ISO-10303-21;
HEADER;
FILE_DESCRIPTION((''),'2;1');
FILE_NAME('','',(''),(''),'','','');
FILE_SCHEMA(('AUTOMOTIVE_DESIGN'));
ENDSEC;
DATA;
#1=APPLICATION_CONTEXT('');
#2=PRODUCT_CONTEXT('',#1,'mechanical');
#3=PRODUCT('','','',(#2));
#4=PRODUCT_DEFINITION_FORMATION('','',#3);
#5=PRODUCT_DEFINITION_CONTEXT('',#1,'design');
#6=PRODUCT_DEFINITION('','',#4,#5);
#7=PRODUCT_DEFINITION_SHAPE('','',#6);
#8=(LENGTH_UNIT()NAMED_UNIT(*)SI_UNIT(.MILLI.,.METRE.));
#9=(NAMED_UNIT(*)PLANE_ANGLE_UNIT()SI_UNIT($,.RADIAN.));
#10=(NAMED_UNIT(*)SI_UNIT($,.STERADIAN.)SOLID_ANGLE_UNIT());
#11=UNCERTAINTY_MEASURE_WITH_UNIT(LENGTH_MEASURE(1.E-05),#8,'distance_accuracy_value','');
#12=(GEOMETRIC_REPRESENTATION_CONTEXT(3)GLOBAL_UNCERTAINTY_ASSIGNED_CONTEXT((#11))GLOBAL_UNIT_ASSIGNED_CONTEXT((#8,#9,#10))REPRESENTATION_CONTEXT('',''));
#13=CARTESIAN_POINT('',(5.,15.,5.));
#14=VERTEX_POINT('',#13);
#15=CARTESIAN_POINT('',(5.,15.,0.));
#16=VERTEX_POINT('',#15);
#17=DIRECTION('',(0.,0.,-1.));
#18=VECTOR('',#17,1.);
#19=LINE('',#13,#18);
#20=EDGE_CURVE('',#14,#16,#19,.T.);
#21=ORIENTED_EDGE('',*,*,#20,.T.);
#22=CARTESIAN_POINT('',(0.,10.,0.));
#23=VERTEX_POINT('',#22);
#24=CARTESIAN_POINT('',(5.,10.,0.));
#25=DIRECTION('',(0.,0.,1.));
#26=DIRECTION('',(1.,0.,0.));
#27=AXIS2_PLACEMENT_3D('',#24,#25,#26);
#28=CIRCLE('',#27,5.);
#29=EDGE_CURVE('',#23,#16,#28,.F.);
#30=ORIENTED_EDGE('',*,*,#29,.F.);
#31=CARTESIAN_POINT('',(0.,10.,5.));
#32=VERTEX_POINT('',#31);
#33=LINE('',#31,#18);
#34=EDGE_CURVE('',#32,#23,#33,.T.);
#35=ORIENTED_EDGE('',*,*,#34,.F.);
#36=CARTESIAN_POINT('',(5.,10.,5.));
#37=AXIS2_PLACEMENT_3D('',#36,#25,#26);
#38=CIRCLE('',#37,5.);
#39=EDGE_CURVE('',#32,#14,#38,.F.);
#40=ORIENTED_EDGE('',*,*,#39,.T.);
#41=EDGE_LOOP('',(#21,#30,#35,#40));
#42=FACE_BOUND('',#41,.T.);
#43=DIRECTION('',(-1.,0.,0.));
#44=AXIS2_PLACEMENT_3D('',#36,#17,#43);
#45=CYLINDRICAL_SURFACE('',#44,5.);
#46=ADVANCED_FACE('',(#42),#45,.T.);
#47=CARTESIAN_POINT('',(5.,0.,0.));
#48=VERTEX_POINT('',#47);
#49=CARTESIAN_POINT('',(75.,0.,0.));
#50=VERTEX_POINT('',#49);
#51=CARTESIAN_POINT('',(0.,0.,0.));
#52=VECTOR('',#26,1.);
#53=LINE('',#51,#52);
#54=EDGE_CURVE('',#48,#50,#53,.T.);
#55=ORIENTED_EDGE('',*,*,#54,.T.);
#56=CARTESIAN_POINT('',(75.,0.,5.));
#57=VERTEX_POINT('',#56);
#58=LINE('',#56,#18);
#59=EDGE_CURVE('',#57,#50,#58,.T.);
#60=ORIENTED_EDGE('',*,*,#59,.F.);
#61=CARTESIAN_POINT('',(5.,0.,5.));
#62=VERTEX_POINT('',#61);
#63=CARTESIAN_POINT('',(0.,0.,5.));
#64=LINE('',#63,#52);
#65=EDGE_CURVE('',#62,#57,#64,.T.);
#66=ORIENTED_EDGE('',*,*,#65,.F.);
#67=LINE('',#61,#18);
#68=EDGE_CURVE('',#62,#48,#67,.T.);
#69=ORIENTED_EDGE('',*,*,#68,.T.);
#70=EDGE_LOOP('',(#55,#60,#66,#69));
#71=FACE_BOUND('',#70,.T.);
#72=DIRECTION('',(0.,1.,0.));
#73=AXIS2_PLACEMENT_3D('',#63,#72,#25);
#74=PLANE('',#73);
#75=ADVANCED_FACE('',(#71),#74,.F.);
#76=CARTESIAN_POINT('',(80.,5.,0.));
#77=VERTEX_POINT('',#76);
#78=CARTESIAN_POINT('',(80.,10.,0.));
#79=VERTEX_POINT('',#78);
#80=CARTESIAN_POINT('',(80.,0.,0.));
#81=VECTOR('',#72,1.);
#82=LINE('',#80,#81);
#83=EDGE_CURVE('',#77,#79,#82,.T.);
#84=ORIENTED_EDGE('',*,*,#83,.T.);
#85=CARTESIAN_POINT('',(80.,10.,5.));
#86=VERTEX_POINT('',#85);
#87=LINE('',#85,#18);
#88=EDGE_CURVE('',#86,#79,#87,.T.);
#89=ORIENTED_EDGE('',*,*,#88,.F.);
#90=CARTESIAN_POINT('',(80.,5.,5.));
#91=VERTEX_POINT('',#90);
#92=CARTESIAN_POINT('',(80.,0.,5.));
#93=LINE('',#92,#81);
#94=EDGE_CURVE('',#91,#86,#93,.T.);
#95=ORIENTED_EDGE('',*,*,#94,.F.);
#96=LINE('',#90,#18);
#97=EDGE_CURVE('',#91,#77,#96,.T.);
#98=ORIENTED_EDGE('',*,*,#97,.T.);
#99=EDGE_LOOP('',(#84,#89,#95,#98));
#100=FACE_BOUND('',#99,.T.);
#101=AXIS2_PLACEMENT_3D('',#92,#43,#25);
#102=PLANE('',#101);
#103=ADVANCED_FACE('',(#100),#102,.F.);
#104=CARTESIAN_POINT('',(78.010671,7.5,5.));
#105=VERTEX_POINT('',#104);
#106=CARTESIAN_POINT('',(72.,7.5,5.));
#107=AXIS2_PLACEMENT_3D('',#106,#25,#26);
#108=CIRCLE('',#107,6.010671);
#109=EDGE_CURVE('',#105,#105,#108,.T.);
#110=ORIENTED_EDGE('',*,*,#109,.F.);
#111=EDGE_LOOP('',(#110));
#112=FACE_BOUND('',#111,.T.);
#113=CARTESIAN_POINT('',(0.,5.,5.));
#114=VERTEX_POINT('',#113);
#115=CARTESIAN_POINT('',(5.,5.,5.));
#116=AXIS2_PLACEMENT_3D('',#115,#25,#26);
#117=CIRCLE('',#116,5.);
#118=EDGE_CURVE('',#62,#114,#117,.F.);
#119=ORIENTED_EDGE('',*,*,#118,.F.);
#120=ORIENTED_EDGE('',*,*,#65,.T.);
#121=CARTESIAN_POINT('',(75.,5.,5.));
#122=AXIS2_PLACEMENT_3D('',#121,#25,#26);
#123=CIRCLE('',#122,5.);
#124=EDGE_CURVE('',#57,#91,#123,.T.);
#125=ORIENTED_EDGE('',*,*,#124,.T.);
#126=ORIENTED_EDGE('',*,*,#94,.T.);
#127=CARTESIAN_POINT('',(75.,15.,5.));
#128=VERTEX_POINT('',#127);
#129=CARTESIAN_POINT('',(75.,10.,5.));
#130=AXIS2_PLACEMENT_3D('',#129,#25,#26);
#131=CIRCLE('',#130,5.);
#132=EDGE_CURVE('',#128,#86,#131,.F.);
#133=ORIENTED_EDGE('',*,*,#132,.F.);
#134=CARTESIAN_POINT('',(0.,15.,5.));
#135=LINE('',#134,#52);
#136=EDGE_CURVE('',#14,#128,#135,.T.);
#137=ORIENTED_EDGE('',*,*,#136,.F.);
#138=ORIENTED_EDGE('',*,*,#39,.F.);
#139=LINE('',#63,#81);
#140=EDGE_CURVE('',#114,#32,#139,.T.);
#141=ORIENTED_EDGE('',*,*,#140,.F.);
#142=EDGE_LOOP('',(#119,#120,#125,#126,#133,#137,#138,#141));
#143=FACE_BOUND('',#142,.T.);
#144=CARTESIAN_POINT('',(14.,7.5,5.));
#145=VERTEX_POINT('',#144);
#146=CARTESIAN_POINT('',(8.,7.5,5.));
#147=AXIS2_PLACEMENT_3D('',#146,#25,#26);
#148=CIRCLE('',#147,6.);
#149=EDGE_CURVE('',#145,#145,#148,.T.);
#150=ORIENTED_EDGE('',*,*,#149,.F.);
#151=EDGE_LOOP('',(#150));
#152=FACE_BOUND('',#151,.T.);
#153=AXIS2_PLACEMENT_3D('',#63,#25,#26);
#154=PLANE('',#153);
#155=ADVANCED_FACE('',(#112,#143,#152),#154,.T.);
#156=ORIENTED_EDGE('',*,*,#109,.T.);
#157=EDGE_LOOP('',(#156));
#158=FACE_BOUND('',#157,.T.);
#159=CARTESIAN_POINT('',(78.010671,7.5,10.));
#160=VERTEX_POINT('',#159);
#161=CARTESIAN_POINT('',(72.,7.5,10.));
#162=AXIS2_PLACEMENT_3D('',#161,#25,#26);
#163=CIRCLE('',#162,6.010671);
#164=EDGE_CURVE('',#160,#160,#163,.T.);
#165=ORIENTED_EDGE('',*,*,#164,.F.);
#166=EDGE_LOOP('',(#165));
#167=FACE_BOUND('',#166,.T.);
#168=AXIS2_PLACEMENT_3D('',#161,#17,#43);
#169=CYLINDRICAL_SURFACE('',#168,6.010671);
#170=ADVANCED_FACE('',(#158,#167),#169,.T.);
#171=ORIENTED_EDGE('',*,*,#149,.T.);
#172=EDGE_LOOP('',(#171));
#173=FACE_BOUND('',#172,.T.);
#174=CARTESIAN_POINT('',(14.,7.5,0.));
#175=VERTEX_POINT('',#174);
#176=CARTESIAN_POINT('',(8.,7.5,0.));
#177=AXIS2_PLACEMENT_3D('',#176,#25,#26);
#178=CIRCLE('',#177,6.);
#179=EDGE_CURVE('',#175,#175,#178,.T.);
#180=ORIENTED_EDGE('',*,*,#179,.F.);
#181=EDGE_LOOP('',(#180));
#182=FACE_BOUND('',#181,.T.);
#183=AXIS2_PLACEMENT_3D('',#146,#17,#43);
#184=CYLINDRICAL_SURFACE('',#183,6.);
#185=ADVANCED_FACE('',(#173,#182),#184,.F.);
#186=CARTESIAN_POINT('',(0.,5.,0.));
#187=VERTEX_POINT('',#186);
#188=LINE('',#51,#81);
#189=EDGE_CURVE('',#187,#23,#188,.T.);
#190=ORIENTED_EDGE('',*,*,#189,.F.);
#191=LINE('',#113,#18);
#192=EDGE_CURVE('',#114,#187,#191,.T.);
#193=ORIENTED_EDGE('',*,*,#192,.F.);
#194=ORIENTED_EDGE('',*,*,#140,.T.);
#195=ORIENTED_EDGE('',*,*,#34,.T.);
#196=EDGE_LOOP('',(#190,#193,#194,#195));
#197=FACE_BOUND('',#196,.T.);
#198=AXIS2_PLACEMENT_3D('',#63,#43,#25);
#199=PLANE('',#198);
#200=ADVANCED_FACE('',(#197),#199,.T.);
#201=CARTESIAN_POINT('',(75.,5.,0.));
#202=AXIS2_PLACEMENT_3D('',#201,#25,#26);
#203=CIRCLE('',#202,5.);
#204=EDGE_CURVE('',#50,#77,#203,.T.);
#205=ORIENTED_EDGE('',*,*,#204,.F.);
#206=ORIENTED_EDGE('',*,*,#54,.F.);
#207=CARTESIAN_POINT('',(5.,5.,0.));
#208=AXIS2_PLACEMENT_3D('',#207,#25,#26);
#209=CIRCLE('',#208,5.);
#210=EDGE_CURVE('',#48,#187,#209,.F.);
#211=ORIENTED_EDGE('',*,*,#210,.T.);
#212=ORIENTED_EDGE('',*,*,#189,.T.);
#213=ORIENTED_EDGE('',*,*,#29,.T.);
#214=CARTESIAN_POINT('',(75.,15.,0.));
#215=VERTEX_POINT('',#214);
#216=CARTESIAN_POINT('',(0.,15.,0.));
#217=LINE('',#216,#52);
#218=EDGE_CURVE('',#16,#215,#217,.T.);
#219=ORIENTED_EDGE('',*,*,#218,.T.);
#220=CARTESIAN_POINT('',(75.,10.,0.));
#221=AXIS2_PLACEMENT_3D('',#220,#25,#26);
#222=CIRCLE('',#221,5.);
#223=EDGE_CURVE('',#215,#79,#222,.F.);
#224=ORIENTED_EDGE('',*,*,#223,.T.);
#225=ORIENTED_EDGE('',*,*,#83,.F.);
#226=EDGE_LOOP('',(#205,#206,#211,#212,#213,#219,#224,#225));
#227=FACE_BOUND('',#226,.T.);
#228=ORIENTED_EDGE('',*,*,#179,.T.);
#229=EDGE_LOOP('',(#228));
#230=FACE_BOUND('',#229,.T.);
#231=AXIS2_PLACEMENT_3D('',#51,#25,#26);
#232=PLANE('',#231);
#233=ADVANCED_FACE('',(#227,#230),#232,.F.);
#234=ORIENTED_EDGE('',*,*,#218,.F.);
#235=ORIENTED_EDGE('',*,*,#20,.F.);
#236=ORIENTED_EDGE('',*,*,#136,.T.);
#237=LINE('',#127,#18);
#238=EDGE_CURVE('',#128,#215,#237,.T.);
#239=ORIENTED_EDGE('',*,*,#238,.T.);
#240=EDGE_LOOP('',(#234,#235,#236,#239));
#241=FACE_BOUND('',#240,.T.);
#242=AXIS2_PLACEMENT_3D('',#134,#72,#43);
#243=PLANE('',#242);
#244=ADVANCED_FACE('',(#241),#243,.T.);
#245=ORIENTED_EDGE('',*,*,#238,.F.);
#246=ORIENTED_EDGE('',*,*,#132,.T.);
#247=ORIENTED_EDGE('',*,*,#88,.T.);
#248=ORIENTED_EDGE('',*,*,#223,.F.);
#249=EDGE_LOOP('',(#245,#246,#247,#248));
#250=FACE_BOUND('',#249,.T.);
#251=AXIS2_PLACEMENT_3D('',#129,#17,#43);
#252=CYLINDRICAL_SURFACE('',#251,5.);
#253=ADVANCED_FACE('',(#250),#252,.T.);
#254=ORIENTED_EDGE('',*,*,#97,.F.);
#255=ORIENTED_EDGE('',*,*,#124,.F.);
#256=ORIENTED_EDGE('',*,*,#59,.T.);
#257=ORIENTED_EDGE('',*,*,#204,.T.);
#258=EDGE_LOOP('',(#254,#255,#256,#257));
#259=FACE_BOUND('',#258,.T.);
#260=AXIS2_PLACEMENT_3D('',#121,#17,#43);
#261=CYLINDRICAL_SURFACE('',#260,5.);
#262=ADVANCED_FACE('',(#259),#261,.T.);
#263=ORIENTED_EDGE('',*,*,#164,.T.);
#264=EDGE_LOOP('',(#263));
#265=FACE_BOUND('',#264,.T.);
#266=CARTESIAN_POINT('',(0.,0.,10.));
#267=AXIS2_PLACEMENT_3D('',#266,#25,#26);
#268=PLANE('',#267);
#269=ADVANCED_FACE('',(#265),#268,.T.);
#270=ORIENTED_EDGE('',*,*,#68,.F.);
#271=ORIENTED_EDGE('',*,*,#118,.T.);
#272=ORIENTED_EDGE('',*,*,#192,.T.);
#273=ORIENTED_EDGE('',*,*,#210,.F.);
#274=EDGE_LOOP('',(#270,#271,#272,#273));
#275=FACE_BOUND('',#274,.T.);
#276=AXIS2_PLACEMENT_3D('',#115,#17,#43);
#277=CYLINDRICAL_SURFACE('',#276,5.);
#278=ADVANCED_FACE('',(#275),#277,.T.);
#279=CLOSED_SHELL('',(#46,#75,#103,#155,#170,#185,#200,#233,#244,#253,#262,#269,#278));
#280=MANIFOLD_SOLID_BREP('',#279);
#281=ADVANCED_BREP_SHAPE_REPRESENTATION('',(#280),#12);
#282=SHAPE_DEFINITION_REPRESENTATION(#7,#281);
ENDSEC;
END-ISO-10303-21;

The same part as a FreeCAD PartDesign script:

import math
import FreeCAD as App
import Part
import Sketcher

V = App.Vector

doc = App.newDocument("Part")
body = doc.addObject("PartDesign::Body", "Body")

# Sketch on XY plane
sketch1 = body.newObject("Sketcher::SketchObject", "Sketch")
sketch1.AttachmentSupport = (doc.getObject("XY_Plane"), [""])
sketch1.MapMode = "FlatFace"
sketch1.addGeometry(Part.ArcOfCircle(Part.Circle(V(5, 10, 0), V(0, 0, 1), 5), math.radians(90), math.radians(180)), False)
sketch1.addGeometry(Part.LineSegment(V(0, 10, 0), V(0, 5, 0)), False)
sketch1.addGeometry(Part.ArcOfCircle(Part.Circle(V(5, 5, 0), V(0, 0, 1), 5), math.radians(180), math.radians(270)), False)
sketch1.addGeometry(Part.LineSegment(V(5, 0, 0), V(75, 0, 0)), False)
sketch1.addGeometry(Part.ArcOfCircle(Part.Circle(V(75, 5, 0), V(0, 0, 1), 5), math.radians(-90), math.radians(0)), False)
sketch1.addGeometry(Part.LineSegment(V(80, 5, 0), V(80, 10, 0)), False)
sketch1.addGeometry(Part.ArcOfCircle(Part.Circle(V(75, 10, 0), V(0, 0, 1), 5), math.radians(0), math.radians(90)), False)
sketch1.addGeometry(Part.LineSegment(V(75, 15, 0), V(5, 15, 0)), False)
sketch1.addGeometry(Part.ArcOfCircle(Part.Circle(V(8, 8, 0), V(0, 0, 1), 6), math.radians(-120), math.radians(0)), False)
sketch1.addGeometry(Part.ArcOfCircle(Part.Circle(V(8, 7, 0), V(0, 0, 1), 6), math.radians(180), math.radians(240)), False)
sketch1.addGeometry(Part.ArcOfCircle(Part.Circle(V(8, 8, 0), V(0, 0, 1), 6), math.radians(120), math.radians(180)), False)
sketch1.addGeometry(Part.ArcOfCircle(Part.Circle(V(8, 8, 0), V(0, 0, 1), 6), math.radians(0), math.radians(120)), False)
sketch1.addGeometry(Part.ArcOfCircle(Part.Circle(V(72, 8, 0), V(0, 0, 1), 6), math.radians(180), math.radians(300)), False)
sketch1.addGeometry(Part.ArcOfCircle(Part.Circle(V(72, 8, 0), V(0, 0, 1), 6), math.radians(60), math.radians(180)), False)
sketch1.addGeometry(Part.ArcOfCircle(Part.Circle(V(72, 8, 0), V(0, 0, 1), 6), math.radians(0), math.radians(60)), False)
sketch1.addGeometry(Part.ArcOfCircle(Part.Circle(V(72, 8, 0), V(0, 0, 1), 6), math.radians(-60), math.radians(0)), False)
sketch1.addConstraint(Sketcher.Constraint("Tangent", 0, 2, 1, 1))
sketch1.addConstraint(Sketcher.Constraint("Tangent", 1, 2, 2, 1))
sketch1.addConstraint(Sketcher.Constraint("Tangent", 2, 2, 3, 1))
sketch1.addConstraint(Sketcher.Constraint("Tangent", 3, 2, 4, 1))
sketch1.addConstraint(Sketcher.Constraint("Tangent", 4, 2, 5, 1))
sketch1.addConstraint(Sketcher.Constraint("Tangent", 5, 2, 6, 1))
sketch1.addConstraint(Sketcher.Constraint("Tangent", 6, 2, 7, 1))
sketch1.addConstraint(Sketcher.Constraint("Tangent", 7, 2, 0, 1))
sketch1.addConstraint(Sketcher.Constraint("Tangent", 8, 1, 9, 2))
sketch1.addConstraint(Sketcher.Constraint("Tangent", 9, 1, 10, 2))
sketch1.addConstraint(Sketcher.Constraint("Tangent", 10, 1, 11, 2))
sketch1.addConstraint(Sketcher.Constraint("Tangent", 11, 1, 8, 2))
sketch1.addConstraint(Sketcher.Constraint("Tangent", 12, 1, 13, 2))
sketch1.addConstraint(Sketcher.Constraint("Tangent", 13, 1, 14, 2))
sketch1.addConstraint(Sketcher.Constraint("Tangent", 14, 1, 15, 2))
sketch1.addConstraint(Sketcher.Constraint("Tangent", 15, 1, 12, 2))
sketch1.addConstraint(Sketcher.Constraint("Vertical", 1))
sketch1.addConstraint(Sketcher.Constraint("Horizontal", 3))
sketch1.addConstraint(Sketcher.Constraint("Vertical", 5))
sketch1.addConstraint(Sketcher.Constraint("Horizontal", 7))
sketch1.addConstraint(Sketcher.Constraint("Equal", 0, 2))
sketch1.addConstraint(Sketcher.Constraint("Equal", 2, 4))
sketch1.addConstraint(Sketcher.Constraint("Equal", 4, 6))
sketch1.addConstraint(Sketcher.Constraint("Equal", 8, 9))
sketch1.addConstraint(Sketcher.Constraint("Equal", 12, 13))
sketch1.addConstraint(Sketcher.Constraint("PointOnObject", 0, 2, -2))
sketch1.addConstraint(Sketcher.Constraint("PointOnObject", 2, 2, -1))
sketch1.addConstraint(Sketcher.Constraint("Horizontal", 11, 3, 12, 3))
sketch1.addConstraint(Sketcher.Constraint("Horizontal", 15, 3, 9, 1))
sketch1.addConstraint(Sketcher.Constraint("Horizontal", 9, 1, 11, 1))
sketch1.addConstraint(Sketcher.Constraint("Horizontal", 11, 1, 12, 1))
sketch1.addConstraint(Sketcher.Constraint("Horizontal", 12, 1, 14, 1))
sketch1.addConstraint(Sketcher.Constraint("Vertical", 7, 2, 8, 1))
sketch1.addConstraint(Sketcher.Constraint("Vertical", 8, 1, 10, 1))
sketch1.addConstraint(Sketcher.Constraint("Vertical", 6, 2, 13, 1))
sketch1.addConstraint(Sketcher.Constraint("Vertical", 13, 1, 15, 1))
sketch1.addConstraint(Sketcher.Constraint("Radius", 0, 5.0))
sketch1.addConstraint(Sketcher.Constraint("Radius", 8, 6.0))
sketch1.addConstraint(Sketcher.Constraint("DistanceX", 3, 1, 3, 2, 70.0))
sketch1.addConstraint(Sketcher.Constraint("DistanceY", 1, 2, 1, 1, 5.0))
sketch1.addConstraint(Sketcher.Constraint("DistanceX", -1, 1, 8, 3, 8.0))
sketch1.addConstraint(Sketcher.Constraint("DistanceX", -1, 1, 12, 3, 72.0))
sketch1.addConstraint(Sketcher.Constraint("DistanceY", -1, 1, 8, 3, 7.5))
sketch1.addConstraint(Sketcher.Constraint("Radius", 12, 6.010671))
pad1 = body.newObject("PartDesign::Pad", "Pad")
pad1.Profile = sketch1
pad1.Length = 5

# Sketch on XY plane
sketch2 = body.newObject("Sketcher::SketchObject", "Sketch001")
sketch2.AttachmentSupport = (doc.getObject("XY_Plane"), [""])
sketch2.MapMode = "FlatFace"
sketch2.addGeometry(Part.ArcOfCircle(Part.Circle(V(72, 8, 0), V(0, 0, 1), 6), math.radians(-60), math.radians(0)), False)
sketch2.addGeometry(Part.ArcOfCircle(Part.Circle(V(72, 8, 0), V(0, 0, 1), 6), math.radians(0), math.radians(60)), False)
sketch2.addGeometry(Part.ArcOfCircle(Part.Circle(V(72, 8, 0), V(0, 0, 1), 6), math.radians(60), math.radians(180)), False)
sketch2.addGeometry(Part.ArcOfCircle(Part.Circle(V(72, 8, 0), V(0, 0, 1), 6), math.radians(180), math.radians(300)), False)
sketch2.addConstraint(Sketcher.Constraint("Tangent", 0, 2, 1, 1))
sketch2.addConstraint(Sketcher.Constraint("Tangent", 1, 2, 2, 1))
sketch2.addConstraint(Sketcher.Constraint("Tangent", 2, 2, 3, 1))
sketch2.addConstraint(Sketcher.Constraint("Tangent", 3, 2, 0, 1))
sketch2.addConstraint(Sketcher.Constraint("Equal", 0, 1))
sketch2.addConstraint(Sketcher.Constraint("Horizontal", 3, 3, 0, 2))
sketch2.addConstraint(Sketcher.Constraint("Horizontal", 0, 2, 2, 2))
sketch2.addConstraint(Sketcher.Constraint("Vertical", 1, 2, 3, 2))
sketch2.addConstraint(Sketcher.Constraint("DistanceX", -1, 1, 0, 3, 72.0))
sketch2.addConstraint(Sketcher.Constraint("DistanceX", -1, 1, 1, 2, 75.0))
sketch2.addConstraint(Sketcher.Constraint("DistanceY", -1, 1, 0, 3, 7.5))
sketch2.addConstraint(Sketcher.Constraint("Radius", 0, 6.010671))
pad2 = body.newObject("PartDesign::Pad", "Pad001")
pad2.Profile = sketch2
pad2.Length = 10

doc.recompute()
